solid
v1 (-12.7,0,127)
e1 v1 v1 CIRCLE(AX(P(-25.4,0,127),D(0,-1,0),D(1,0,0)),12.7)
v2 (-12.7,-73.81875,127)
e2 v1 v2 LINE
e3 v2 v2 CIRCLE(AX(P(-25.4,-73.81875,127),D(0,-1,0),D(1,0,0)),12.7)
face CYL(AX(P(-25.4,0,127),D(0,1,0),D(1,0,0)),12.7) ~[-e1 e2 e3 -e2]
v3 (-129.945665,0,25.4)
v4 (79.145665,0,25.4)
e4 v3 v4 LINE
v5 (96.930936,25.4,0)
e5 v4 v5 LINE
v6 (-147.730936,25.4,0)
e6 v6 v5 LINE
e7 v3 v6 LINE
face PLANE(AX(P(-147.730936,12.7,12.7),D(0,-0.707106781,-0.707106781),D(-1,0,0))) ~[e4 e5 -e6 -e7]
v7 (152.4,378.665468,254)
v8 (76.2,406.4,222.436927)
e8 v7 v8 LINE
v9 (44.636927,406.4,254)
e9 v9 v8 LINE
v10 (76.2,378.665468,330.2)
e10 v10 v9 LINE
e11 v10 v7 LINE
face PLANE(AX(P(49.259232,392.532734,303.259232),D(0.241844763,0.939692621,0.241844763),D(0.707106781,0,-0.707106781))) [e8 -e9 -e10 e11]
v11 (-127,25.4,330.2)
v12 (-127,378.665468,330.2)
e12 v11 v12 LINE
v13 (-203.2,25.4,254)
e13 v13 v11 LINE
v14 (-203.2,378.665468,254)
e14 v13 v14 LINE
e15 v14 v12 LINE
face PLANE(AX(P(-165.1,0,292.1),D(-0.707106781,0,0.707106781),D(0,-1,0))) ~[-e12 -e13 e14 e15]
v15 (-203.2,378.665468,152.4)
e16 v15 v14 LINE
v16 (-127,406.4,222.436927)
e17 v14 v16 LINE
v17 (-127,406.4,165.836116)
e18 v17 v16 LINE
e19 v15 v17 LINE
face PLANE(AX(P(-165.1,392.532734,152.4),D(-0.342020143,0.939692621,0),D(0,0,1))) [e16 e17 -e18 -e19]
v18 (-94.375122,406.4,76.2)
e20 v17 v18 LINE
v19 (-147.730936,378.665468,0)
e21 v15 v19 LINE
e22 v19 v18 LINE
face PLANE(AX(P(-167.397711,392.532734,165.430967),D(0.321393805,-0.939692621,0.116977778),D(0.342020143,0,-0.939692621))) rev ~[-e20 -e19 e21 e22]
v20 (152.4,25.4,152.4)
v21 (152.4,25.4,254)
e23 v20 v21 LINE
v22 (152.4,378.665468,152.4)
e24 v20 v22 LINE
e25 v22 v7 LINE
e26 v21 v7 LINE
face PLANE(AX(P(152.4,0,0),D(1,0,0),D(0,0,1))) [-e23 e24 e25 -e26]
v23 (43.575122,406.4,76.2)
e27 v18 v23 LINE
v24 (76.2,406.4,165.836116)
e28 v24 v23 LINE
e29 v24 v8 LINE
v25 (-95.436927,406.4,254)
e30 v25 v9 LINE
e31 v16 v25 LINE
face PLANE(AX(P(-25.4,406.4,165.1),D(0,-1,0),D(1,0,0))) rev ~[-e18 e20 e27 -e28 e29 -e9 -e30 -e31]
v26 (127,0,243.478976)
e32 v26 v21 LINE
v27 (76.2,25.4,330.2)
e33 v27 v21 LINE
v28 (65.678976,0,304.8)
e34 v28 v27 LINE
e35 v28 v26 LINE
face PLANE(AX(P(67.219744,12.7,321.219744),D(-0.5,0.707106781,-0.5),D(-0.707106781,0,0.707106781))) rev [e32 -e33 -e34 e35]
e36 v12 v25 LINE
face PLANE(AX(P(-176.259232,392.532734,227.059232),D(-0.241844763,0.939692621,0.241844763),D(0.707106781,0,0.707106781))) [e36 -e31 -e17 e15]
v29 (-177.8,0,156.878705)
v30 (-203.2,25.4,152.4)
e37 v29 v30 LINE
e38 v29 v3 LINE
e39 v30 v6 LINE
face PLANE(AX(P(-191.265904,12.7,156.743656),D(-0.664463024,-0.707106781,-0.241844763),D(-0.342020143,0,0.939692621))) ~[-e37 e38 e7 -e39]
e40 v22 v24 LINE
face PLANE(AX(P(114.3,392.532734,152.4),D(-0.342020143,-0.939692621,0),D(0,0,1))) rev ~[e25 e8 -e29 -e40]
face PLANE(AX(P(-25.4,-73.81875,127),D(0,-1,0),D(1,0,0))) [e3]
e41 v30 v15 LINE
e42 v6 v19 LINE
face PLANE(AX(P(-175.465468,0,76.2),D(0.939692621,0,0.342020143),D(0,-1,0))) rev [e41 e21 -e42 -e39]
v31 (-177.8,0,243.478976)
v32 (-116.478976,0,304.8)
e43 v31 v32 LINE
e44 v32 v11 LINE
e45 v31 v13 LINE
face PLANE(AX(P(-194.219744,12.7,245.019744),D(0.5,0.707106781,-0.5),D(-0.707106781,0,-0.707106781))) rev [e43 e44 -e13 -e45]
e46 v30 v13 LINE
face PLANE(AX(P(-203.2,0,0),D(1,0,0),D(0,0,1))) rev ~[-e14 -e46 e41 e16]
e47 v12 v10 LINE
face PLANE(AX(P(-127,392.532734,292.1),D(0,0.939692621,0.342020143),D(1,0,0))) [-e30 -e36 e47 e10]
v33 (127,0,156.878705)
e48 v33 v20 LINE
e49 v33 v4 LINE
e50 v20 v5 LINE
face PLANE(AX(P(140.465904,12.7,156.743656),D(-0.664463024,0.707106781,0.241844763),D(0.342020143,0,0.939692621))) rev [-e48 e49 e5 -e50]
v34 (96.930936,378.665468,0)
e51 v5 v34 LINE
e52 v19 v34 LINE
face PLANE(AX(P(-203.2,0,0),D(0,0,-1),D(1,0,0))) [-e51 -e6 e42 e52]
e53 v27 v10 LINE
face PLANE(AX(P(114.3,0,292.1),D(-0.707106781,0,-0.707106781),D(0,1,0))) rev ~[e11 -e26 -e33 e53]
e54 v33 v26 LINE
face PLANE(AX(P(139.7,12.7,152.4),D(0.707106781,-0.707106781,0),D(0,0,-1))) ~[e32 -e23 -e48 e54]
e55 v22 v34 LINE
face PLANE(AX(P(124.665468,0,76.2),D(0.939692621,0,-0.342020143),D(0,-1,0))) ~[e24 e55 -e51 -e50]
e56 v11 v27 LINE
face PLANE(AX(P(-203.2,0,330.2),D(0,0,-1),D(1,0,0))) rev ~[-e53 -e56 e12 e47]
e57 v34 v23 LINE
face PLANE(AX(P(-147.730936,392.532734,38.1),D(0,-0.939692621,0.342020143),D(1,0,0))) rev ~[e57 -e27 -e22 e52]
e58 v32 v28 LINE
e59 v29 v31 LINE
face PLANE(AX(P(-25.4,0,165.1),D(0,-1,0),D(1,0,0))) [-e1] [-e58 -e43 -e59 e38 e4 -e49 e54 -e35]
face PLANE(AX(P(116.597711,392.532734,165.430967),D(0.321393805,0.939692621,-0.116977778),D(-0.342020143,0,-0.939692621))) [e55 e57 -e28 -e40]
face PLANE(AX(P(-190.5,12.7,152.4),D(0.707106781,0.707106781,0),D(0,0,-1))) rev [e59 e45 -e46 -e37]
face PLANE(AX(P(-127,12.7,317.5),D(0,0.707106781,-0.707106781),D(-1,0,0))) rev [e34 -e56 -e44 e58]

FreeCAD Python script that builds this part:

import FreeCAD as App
import Part
import Sketcher
from FreeCAD import Vector
Q = App.Units.Quantity


def edges_at(feature, points):
    """Names of the edges that pass closest to the given points."""
    edges = feature.Shape.Edges
    near = lambda p: min(range(len(edges)), key=lambda i: edges[i].distToShape(Part.Vertex(*p))[0])
    return sorted({f"Edge{near(p) + 1}" for p in points})

doc = App.newDocument("Part")
body = doc.addObject("PartDesign::Body", "Body")

sketch1 = body.newObject("Sketcher::SketchObject", "Sketch")
sketch1.AttachmentSupport = (doc.getObject("XZ_Plane"), [""])
sketch1.MapMode = "FlatFace"
sketch1.addGeometry([
    Part.LineSegment(Vector(-203, 330, 0), Vector(-203, 0, 0)),
    Part.LineSegment(Vector(-203, 0, 0), Vector(152, 0, 0)),
    Part.LineSegment(Vector(152, 0, 0), Vector(152, 330, 0)),
    Part.LineSegment(Vector(152, 330, 0), Vector(-203, 330, 0)),
], False)
sketch1.addConstraint([
    Sketcher.Constraint("Coincident", 0, 2, 1, 1),
    Sketcher.Constraint("Coincident", 1, 2, 2, 1),
    Sketcher.Constraint("Coincident", 2, 2, 3, 1),
    Sketcher.Constraint("Coincident", 3, 2, 0, 1),
    Sketcher.Constraint("Vertical", 0),
    Sketcher.Constraint("Horizontal", 1),
    Sketcher.Constraint("Vertical", 2),
    Sketcher.Constraint("Horizontal", 3),
    Sketcher.Constraint("PointOnObject", 0, 2, -1),
    Sketcher.Constraint("DistanceX", 1, 1, 1, 2, Q("14 in")),
    Sketcher.Constraint("DistanceY", 0, 2, 0, 1, Q("13 in")),
    Sketcher.Constraint("DistanceX", 0, 2, -1, 1, Q("8 in")),
])
pad1 = body.newObject("PartDesign::Pad", "Pad")
pad1.Profile = sketch1
pad1.Length = Q("16 in")
pad1.Reversed = True

sketch2 = body.newObject("Sketcher::SketchObject", "Sketch001")
sketch2.AttachmentSupport = (doc.getObject("XZ_Plane"), [""])
sketch2.MapMode = "FlatFace"
sketch2.addGeometry(Part.Circle(Vector(-25, 127, 0), Vector(0, 0, 1), 13), False)
sketch2.addConstraint([
    Sketcher.Constraint("Diameter", 0, Q("1 in")),
    Sketcher.Constraint("DistanceX", 0, 3, -1, 1, Q("1 in")),
    Sketcher.Constraint("DistanceY", -1, 1, 0, 3, Q("5 in")),
])
pad2 = body.newObject("PartDesign::Pad", "Pad001")
pad2.Profile = sketch2
pad2.Length = Q("2.90625 in")
doc.recompute()

chamfer = body.newObject("PartDesign::Chamfer", "Chamfer")
chamfer.Base = (pad2, edges_at(pad2, [(-203.2, 203.2, 330.2), (152.4, 203.2, 330.2)]))
chamfer.Size = Q("3 in")
doc.recompute()

chamfer2 = body.newObject("PartDesign::Chamfer", "Chamfer001")
chamfer2.Base = (chamfer, edges_at(chamfer, [(-203.2, 203.2, 0)]))
chamfer2.ChamferType = "Two distances"
chamfer2.Size = Q("6 in")
chamfer2.Size2 = 55.469064
doc.recompute()

chamfer3 = body.newObject("PartDesign::Chamfer", "Chamfer002")
chamfer3.Base = (chamfer2, edges_at(chamfer2, [(152.4, 203.2, 0)]))
chamfer3.ChamferType = "Two distances"
chamfer3.Size = Q("6 in")
chamfer3.Size2 = 55.469064
chamfer3.FlipDirection = True
doc.recompute()

chamfer4 = body.newObject("PartDesign::Chamfer", "Chamfer003")
chamfer4.Base = (chamfer3, edges_at(chamfer3, [
    (-165.1, 0, 292.1),
    (-203.2, 0, 203.2),
    (-175.465, 0, 76.2),
    (-25.4, 0, 0),
    (124.665, 0, 76.2),
    (152.4, 0, 203.2),
    (114.3, 0, 292.1),
    (-25.4, 0, 330.2),
]))
chamfer4.Size = Q("1 in")
doc.recompute()

chamfer5 = body.newObject("PartDesign::Chamfer", "Chamfer004")
chamfer5.Base = (chamfer4, edges_at(chamfer4, [
    (-175.465, 406.4, 76.2),
    (-203.2, 406.4, 203.2),
    (-165.1, 406.4, 292.1),
    (-25.4, 406.4, 330.2),
    (-25.4, 406.4, 0),
    (124.665, 406.4, 76.2),
    (152.4, 406.4, 203.2),
    (114.3, 406.4, 292.1),
]))
chamfer5.ChamferType = "Two distances"
chamfer5.Size = 27.734532
chamfer5.Size2 = Q("3 in")

doc.recompute()
